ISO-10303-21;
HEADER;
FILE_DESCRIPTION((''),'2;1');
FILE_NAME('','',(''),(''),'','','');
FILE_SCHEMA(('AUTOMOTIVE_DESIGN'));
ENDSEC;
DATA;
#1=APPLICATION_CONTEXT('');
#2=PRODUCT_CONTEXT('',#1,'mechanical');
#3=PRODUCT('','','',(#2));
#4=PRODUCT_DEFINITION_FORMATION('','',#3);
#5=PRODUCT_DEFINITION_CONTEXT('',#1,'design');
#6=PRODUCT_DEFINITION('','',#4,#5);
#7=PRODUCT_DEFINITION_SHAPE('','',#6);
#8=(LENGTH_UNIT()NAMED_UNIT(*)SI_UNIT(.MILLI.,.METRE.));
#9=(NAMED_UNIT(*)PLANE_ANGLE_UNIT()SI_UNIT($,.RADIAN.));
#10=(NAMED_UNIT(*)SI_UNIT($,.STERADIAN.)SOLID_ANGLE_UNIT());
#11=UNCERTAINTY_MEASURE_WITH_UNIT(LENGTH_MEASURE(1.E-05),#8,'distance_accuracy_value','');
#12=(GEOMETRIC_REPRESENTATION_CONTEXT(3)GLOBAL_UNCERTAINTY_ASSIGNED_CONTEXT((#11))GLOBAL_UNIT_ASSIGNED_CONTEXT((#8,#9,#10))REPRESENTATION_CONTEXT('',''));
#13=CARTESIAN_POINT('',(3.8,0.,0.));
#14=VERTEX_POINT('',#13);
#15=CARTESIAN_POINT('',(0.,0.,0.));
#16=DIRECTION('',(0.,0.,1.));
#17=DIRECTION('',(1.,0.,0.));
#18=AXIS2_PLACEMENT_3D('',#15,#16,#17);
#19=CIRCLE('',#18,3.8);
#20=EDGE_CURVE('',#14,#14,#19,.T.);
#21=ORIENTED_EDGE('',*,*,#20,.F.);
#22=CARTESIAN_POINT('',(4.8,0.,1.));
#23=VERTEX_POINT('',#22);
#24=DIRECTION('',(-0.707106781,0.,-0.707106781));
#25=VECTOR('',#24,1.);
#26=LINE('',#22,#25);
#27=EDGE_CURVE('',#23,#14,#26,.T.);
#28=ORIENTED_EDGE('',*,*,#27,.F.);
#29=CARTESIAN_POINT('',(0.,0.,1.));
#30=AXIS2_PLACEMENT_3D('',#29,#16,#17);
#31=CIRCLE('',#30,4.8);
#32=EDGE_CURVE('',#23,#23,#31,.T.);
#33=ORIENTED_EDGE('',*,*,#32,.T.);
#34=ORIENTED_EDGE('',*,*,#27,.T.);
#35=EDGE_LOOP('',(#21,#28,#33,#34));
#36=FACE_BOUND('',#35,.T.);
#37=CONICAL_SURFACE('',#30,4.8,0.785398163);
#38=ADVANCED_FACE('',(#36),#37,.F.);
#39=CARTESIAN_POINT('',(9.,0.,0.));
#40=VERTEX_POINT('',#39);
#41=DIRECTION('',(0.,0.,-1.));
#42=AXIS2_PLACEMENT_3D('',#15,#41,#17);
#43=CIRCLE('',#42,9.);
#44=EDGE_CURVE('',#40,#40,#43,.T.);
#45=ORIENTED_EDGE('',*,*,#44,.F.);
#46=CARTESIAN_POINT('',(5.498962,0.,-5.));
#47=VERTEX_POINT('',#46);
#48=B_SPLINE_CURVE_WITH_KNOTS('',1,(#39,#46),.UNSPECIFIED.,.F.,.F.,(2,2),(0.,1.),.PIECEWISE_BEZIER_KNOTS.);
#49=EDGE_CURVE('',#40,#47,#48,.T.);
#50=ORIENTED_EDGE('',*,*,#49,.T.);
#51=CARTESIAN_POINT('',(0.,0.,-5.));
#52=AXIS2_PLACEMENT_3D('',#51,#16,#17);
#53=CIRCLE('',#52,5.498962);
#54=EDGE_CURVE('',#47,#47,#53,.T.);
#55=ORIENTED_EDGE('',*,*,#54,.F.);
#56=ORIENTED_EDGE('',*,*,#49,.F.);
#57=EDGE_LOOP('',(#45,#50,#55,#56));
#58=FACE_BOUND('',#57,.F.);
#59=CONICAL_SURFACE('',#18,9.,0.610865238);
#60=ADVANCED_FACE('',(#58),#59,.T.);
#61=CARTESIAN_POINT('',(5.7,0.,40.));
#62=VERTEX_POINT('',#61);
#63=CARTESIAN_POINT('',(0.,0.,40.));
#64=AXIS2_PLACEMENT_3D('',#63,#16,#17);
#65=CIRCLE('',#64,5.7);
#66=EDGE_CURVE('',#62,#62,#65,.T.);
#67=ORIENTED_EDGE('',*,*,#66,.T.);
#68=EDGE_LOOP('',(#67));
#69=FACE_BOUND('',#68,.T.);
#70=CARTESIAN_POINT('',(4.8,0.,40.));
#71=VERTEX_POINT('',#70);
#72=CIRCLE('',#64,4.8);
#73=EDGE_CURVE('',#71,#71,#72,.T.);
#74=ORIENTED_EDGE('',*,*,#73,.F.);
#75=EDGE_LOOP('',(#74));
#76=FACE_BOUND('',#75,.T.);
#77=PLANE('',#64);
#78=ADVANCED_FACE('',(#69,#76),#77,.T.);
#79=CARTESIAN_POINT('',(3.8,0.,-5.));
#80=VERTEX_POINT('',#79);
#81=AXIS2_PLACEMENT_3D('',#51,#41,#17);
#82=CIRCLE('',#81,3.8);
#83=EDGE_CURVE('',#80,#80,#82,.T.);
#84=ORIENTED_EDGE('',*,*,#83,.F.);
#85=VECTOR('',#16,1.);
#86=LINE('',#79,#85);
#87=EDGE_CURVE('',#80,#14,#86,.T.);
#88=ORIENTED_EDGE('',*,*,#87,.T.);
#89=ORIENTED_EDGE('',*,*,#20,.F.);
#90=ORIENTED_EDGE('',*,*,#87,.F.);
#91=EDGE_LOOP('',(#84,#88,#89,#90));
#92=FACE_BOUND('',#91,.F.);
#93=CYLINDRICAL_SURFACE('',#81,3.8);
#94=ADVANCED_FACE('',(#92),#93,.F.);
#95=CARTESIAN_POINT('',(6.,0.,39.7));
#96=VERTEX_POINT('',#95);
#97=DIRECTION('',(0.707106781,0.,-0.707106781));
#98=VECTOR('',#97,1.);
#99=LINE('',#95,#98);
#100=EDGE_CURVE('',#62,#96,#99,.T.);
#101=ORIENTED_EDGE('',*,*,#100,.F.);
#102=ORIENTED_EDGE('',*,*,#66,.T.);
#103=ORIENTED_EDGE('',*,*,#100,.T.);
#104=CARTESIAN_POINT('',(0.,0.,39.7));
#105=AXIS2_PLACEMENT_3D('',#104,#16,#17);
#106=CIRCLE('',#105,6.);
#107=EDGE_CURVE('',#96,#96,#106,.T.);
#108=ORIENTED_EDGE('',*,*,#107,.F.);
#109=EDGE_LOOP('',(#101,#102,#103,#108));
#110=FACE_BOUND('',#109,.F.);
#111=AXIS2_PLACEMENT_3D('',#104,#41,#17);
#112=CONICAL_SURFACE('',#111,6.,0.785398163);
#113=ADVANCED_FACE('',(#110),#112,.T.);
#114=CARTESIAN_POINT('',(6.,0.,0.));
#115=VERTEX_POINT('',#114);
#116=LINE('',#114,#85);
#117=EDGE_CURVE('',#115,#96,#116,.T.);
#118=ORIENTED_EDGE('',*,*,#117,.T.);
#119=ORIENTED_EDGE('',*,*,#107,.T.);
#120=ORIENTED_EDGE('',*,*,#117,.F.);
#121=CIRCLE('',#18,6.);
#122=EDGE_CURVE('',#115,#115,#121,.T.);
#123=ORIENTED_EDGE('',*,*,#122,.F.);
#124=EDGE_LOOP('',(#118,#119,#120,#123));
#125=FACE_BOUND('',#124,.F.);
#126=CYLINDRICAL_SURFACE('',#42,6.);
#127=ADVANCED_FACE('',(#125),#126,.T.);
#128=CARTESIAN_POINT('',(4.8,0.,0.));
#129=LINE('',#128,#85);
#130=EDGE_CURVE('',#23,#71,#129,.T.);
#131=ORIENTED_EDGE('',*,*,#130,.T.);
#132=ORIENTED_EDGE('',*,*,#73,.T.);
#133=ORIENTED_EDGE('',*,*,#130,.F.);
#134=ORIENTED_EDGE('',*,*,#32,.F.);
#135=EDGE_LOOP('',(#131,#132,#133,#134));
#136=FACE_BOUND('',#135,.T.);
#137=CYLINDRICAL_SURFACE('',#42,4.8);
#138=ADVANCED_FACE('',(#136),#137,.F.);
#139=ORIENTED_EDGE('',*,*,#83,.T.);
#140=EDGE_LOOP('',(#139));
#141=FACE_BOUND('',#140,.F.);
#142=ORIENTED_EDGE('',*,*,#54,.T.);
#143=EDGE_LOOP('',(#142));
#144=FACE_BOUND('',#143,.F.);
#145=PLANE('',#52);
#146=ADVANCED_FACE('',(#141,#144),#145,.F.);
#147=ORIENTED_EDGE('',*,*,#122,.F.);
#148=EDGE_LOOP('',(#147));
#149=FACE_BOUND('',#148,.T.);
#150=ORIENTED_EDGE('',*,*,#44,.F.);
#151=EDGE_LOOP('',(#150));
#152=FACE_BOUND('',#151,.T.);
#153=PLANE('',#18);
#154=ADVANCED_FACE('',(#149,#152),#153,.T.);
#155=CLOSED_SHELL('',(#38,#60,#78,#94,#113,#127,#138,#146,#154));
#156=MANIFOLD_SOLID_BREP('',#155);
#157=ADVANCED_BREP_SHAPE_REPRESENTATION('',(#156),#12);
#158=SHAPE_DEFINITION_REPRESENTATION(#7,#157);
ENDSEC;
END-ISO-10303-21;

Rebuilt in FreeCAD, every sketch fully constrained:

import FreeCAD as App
import Part
import Sketcher
Q = App.Units.Quantity


def edges_at(feature, points):
    """Names of the edges that pass closest to the given points."""
    edges = feature.Shape.Edges
    near = lambda p: min(range(len(edges)), key=lambda i: edges[i].distToShape(Part.Vertex(*p))[0])
    return sorted({f"Edge{near(p) + 1}" for p in points})

doc = App.newDocument("Part")
body = doc.addObject("PartDesign::Body", "Body")

sketch1 = body.newObject("Sketcher::SketchObject", "Sketch")
sketch1.AttachmentSupport = (doc.getObject("XY_Plane"), [""])
sketch1.MapMode = "FlatFace"
sketch1.addGeometry([
    Part.Circle(App.Vector(0, 0, 0), App.Vector(0, 0, 1), 6),
    Part.Circle(App.Vector(0, 0, 0), App.Vector(0, 0, 1), 4.8),
], False)
sketch1.addConstraint([
    Sketcher.Constraint("Coincident", 0, 3, -1, 1),
    Sketcher.Constraint("Coincident", 1, 3, -1, 1),
    Sketcher.Constraint("Diameter", 0, Q("12 mm")),
    Sketcher.Constraint("Diameter", 1, Q("9.6 mm")),
])
pad1 = body.newObject("PartDesign::Pad", "Pad")
pad1.Profile = sketch1
pad1.Length = 40

sketch2 = body.newObject("Sketcher::SketchObject", "Sketch001")
sketch2.AttachmentSupport = (doc.getObject("XY_Plane"), [""])
sketch2.MapMode = "FlatFace"
sketch2.addGeometry(Part.Circle(App.Vector(0, 0, 0), App.Vector(0, 0, 1), 9), False)
sketch2.addConstraint([
    Sketcher.Constraint("Coincident", 0, 3, -1, 1),
    Sketcher.Constraint("Diameter", 0, Q("18 mm")),
])
pad2 = body.newObject("PartDesign::Pad", "Pad001")
pad2.Profile = sketch2
pad2.Length = 5
pad2.Reversed = True
pad2.TaperAngle = -35
doc.recompute()

chamfer = body.newObject("PartDesign::Chamfer", "Chamfer")
chamfer.Base = (pad2, edges_at(pad2, [(-4.8, 0, 0)]))
chamfer.Size = 1
doc.recompute()

chamfer2 = body.newObject("PartDesign::Chamfer", "Chamfer001")
chamfer2.Base = (chamfer, edges_at(chamfer, [(-6, 0, 40)]))
chamfer2.Size = 0.3

sketch3 = body.newObject("Sketcher::SketchObject", "Sketch002")
sketch3.AttachmentSupport = (doc.getObject("XY_Plane"), [""])
sketch3.MapMode = "FlatFace"
sketch3.AttachmentOffset = App.Placement(App.Vector(0, 0, -5), App.Rotation())
sketch3.addGeometry(Part.Circle(App.Vector(0, 0, 0), App.Vector(0, 0, 1), 3.8), False)
sketch3.addConstraint([
    Sketcher.Constraint("Coincident", 0, 3, -1, 1),
    Sketcher.Constraint("Diameter", 0, Q("7.6 mm")),
])
pocket1 = body.newObject("PartDesign::Pocket", "Pocket")
pocket1.Profile = sketch3
pocket1.Length = 100
pocket1.Reversed = True

doc.recompute()
